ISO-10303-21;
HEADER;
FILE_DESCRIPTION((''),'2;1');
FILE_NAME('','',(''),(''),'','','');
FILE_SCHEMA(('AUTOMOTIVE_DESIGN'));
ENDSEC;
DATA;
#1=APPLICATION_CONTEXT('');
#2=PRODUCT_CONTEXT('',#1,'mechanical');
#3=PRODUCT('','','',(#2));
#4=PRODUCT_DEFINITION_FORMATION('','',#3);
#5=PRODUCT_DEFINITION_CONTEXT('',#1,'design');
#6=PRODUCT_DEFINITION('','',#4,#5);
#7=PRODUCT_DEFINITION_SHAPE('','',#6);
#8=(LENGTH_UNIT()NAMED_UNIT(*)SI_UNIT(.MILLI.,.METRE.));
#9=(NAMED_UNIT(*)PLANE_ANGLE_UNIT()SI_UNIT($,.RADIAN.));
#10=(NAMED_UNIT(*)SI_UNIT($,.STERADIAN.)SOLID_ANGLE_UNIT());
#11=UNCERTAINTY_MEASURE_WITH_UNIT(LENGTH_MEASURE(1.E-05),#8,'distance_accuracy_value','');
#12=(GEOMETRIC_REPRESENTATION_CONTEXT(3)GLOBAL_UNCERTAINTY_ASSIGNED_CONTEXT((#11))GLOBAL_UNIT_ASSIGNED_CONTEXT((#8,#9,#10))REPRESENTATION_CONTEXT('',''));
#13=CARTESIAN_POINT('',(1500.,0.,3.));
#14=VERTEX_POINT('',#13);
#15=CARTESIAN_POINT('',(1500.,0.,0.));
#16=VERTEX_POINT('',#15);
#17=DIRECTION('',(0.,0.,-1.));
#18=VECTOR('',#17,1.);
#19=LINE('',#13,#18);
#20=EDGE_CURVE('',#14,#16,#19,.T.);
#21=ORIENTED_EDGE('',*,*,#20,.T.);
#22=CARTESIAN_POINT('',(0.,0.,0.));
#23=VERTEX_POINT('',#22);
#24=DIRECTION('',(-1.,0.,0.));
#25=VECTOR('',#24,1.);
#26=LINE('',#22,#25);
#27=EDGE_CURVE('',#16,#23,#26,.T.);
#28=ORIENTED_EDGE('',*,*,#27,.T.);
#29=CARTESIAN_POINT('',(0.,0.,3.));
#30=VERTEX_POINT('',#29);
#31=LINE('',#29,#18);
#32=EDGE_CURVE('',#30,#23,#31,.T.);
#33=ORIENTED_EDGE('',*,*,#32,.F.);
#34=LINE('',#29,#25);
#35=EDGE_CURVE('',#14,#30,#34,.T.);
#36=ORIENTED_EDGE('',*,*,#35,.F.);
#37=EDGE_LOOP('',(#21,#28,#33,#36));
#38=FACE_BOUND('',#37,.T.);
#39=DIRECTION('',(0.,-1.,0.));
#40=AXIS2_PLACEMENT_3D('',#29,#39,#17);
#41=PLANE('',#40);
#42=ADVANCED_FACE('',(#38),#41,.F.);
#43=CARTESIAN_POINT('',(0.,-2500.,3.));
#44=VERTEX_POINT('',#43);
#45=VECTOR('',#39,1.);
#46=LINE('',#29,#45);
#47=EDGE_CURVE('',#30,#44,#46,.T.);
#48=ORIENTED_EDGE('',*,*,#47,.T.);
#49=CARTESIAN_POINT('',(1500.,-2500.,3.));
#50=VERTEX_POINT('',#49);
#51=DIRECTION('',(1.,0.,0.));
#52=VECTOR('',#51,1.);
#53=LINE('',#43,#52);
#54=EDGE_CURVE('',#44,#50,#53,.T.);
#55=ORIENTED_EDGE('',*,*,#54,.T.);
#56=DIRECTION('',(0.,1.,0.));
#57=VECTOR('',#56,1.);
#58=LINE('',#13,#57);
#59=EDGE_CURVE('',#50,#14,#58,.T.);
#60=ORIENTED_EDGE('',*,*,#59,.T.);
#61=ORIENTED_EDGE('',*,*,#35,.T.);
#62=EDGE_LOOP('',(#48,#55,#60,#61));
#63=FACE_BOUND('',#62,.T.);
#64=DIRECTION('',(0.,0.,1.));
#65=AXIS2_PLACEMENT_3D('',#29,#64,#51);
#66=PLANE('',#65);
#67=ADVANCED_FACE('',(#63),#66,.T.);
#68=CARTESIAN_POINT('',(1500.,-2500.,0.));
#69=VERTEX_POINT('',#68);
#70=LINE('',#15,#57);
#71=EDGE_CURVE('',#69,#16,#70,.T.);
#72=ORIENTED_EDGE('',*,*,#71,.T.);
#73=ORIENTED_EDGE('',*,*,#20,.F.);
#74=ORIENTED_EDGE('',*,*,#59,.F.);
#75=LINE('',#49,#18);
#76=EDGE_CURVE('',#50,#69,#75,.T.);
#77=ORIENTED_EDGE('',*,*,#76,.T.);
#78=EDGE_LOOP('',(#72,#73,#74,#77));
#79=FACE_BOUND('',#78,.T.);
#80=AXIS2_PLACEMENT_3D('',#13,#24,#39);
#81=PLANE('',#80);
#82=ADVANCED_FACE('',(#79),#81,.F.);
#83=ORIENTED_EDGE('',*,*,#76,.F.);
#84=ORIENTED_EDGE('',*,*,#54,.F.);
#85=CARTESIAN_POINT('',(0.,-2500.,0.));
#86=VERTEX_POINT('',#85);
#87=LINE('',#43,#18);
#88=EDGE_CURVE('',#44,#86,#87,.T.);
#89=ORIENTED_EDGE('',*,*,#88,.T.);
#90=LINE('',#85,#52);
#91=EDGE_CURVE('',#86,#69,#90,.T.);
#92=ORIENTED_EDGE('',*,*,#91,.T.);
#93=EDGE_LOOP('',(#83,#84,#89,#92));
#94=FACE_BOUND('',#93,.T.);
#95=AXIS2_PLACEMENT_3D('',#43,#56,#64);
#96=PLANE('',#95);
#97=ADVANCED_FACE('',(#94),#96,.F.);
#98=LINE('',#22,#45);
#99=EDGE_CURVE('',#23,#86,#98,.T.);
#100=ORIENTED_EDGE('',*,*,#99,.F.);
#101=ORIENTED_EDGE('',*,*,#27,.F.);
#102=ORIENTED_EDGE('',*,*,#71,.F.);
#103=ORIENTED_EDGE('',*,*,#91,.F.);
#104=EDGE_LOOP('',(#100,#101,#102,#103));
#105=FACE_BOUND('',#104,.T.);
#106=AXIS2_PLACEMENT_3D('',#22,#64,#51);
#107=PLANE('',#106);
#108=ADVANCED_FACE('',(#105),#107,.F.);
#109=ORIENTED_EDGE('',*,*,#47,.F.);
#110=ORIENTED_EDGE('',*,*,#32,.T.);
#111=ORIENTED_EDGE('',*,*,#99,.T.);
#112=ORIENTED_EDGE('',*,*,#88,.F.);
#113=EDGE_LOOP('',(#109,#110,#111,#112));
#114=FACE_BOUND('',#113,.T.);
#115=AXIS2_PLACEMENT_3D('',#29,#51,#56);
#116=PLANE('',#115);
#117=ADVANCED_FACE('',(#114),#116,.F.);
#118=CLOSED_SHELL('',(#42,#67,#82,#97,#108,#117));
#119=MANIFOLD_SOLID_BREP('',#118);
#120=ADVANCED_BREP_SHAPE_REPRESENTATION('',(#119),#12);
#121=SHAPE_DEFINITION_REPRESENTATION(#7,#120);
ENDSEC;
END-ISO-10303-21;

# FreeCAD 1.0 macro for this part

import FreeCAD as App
import Part
import Sketcher

V = App.Vector


def add_polygon(sketch, points):
    """Adds a closed chain of lines whose ends are joined by coincident constraints."""
    first, n = sketch.GeometryCount, len(points)
    for a, b in zip(points, points[1:] + points[:1]):
        sketch.addGeometry(Part.LineSegment(App.Vector(*a, 0), App.Vector(*b, 0)), False)
    for i in range(n):
        sketch.addConstraint(Sketcher.Constraint("Coincident", first + i, 2, first + (i + 1) % n, 1))

doc = App.newDocument("Part")
body = doc.addObject("PartDesign::Body", "Body")

sketch1 = body.newObject("Sketcher::SketchObject", "Sketch")
sketch1.AttachmentSupport = (doc.getObject("XY_Plane"), [""])
sketch1.MapMode = "FlatFace"
add_polygon(sketch1, [(0, 0), (0, -2500), (1500, -2500), (1500, 0)])
sketch1.addConstraint(Sketcher.Constraint("Vertical", 0))
sketch1.addConstraint(Sketcher.Constraint("Horizontal", 1))
sketch1.addConstraint(Sketcher.Constraint("Vertical", 2))
sketch1.addConstraint(Sketcher.Constraint("Horizontal", 3))
sketch1.addConstraint(Sketcher.Constraint("Coincident", 3, 2, -1, 1))
sketch1.addConstraint(Sketcher.Constraint("DistanceX", 1, 1, 1, 2, 1500.0))
sketch1.addConstraint(Sketcher.Constraint("DistanceY", 0, 2, 0, 1, 2500.0))
pad1 = body.newObject("PartDesign::Pad", "Pad")
pad1.Profile = sketch1
pad1.Length = 3

doc.recompute()
